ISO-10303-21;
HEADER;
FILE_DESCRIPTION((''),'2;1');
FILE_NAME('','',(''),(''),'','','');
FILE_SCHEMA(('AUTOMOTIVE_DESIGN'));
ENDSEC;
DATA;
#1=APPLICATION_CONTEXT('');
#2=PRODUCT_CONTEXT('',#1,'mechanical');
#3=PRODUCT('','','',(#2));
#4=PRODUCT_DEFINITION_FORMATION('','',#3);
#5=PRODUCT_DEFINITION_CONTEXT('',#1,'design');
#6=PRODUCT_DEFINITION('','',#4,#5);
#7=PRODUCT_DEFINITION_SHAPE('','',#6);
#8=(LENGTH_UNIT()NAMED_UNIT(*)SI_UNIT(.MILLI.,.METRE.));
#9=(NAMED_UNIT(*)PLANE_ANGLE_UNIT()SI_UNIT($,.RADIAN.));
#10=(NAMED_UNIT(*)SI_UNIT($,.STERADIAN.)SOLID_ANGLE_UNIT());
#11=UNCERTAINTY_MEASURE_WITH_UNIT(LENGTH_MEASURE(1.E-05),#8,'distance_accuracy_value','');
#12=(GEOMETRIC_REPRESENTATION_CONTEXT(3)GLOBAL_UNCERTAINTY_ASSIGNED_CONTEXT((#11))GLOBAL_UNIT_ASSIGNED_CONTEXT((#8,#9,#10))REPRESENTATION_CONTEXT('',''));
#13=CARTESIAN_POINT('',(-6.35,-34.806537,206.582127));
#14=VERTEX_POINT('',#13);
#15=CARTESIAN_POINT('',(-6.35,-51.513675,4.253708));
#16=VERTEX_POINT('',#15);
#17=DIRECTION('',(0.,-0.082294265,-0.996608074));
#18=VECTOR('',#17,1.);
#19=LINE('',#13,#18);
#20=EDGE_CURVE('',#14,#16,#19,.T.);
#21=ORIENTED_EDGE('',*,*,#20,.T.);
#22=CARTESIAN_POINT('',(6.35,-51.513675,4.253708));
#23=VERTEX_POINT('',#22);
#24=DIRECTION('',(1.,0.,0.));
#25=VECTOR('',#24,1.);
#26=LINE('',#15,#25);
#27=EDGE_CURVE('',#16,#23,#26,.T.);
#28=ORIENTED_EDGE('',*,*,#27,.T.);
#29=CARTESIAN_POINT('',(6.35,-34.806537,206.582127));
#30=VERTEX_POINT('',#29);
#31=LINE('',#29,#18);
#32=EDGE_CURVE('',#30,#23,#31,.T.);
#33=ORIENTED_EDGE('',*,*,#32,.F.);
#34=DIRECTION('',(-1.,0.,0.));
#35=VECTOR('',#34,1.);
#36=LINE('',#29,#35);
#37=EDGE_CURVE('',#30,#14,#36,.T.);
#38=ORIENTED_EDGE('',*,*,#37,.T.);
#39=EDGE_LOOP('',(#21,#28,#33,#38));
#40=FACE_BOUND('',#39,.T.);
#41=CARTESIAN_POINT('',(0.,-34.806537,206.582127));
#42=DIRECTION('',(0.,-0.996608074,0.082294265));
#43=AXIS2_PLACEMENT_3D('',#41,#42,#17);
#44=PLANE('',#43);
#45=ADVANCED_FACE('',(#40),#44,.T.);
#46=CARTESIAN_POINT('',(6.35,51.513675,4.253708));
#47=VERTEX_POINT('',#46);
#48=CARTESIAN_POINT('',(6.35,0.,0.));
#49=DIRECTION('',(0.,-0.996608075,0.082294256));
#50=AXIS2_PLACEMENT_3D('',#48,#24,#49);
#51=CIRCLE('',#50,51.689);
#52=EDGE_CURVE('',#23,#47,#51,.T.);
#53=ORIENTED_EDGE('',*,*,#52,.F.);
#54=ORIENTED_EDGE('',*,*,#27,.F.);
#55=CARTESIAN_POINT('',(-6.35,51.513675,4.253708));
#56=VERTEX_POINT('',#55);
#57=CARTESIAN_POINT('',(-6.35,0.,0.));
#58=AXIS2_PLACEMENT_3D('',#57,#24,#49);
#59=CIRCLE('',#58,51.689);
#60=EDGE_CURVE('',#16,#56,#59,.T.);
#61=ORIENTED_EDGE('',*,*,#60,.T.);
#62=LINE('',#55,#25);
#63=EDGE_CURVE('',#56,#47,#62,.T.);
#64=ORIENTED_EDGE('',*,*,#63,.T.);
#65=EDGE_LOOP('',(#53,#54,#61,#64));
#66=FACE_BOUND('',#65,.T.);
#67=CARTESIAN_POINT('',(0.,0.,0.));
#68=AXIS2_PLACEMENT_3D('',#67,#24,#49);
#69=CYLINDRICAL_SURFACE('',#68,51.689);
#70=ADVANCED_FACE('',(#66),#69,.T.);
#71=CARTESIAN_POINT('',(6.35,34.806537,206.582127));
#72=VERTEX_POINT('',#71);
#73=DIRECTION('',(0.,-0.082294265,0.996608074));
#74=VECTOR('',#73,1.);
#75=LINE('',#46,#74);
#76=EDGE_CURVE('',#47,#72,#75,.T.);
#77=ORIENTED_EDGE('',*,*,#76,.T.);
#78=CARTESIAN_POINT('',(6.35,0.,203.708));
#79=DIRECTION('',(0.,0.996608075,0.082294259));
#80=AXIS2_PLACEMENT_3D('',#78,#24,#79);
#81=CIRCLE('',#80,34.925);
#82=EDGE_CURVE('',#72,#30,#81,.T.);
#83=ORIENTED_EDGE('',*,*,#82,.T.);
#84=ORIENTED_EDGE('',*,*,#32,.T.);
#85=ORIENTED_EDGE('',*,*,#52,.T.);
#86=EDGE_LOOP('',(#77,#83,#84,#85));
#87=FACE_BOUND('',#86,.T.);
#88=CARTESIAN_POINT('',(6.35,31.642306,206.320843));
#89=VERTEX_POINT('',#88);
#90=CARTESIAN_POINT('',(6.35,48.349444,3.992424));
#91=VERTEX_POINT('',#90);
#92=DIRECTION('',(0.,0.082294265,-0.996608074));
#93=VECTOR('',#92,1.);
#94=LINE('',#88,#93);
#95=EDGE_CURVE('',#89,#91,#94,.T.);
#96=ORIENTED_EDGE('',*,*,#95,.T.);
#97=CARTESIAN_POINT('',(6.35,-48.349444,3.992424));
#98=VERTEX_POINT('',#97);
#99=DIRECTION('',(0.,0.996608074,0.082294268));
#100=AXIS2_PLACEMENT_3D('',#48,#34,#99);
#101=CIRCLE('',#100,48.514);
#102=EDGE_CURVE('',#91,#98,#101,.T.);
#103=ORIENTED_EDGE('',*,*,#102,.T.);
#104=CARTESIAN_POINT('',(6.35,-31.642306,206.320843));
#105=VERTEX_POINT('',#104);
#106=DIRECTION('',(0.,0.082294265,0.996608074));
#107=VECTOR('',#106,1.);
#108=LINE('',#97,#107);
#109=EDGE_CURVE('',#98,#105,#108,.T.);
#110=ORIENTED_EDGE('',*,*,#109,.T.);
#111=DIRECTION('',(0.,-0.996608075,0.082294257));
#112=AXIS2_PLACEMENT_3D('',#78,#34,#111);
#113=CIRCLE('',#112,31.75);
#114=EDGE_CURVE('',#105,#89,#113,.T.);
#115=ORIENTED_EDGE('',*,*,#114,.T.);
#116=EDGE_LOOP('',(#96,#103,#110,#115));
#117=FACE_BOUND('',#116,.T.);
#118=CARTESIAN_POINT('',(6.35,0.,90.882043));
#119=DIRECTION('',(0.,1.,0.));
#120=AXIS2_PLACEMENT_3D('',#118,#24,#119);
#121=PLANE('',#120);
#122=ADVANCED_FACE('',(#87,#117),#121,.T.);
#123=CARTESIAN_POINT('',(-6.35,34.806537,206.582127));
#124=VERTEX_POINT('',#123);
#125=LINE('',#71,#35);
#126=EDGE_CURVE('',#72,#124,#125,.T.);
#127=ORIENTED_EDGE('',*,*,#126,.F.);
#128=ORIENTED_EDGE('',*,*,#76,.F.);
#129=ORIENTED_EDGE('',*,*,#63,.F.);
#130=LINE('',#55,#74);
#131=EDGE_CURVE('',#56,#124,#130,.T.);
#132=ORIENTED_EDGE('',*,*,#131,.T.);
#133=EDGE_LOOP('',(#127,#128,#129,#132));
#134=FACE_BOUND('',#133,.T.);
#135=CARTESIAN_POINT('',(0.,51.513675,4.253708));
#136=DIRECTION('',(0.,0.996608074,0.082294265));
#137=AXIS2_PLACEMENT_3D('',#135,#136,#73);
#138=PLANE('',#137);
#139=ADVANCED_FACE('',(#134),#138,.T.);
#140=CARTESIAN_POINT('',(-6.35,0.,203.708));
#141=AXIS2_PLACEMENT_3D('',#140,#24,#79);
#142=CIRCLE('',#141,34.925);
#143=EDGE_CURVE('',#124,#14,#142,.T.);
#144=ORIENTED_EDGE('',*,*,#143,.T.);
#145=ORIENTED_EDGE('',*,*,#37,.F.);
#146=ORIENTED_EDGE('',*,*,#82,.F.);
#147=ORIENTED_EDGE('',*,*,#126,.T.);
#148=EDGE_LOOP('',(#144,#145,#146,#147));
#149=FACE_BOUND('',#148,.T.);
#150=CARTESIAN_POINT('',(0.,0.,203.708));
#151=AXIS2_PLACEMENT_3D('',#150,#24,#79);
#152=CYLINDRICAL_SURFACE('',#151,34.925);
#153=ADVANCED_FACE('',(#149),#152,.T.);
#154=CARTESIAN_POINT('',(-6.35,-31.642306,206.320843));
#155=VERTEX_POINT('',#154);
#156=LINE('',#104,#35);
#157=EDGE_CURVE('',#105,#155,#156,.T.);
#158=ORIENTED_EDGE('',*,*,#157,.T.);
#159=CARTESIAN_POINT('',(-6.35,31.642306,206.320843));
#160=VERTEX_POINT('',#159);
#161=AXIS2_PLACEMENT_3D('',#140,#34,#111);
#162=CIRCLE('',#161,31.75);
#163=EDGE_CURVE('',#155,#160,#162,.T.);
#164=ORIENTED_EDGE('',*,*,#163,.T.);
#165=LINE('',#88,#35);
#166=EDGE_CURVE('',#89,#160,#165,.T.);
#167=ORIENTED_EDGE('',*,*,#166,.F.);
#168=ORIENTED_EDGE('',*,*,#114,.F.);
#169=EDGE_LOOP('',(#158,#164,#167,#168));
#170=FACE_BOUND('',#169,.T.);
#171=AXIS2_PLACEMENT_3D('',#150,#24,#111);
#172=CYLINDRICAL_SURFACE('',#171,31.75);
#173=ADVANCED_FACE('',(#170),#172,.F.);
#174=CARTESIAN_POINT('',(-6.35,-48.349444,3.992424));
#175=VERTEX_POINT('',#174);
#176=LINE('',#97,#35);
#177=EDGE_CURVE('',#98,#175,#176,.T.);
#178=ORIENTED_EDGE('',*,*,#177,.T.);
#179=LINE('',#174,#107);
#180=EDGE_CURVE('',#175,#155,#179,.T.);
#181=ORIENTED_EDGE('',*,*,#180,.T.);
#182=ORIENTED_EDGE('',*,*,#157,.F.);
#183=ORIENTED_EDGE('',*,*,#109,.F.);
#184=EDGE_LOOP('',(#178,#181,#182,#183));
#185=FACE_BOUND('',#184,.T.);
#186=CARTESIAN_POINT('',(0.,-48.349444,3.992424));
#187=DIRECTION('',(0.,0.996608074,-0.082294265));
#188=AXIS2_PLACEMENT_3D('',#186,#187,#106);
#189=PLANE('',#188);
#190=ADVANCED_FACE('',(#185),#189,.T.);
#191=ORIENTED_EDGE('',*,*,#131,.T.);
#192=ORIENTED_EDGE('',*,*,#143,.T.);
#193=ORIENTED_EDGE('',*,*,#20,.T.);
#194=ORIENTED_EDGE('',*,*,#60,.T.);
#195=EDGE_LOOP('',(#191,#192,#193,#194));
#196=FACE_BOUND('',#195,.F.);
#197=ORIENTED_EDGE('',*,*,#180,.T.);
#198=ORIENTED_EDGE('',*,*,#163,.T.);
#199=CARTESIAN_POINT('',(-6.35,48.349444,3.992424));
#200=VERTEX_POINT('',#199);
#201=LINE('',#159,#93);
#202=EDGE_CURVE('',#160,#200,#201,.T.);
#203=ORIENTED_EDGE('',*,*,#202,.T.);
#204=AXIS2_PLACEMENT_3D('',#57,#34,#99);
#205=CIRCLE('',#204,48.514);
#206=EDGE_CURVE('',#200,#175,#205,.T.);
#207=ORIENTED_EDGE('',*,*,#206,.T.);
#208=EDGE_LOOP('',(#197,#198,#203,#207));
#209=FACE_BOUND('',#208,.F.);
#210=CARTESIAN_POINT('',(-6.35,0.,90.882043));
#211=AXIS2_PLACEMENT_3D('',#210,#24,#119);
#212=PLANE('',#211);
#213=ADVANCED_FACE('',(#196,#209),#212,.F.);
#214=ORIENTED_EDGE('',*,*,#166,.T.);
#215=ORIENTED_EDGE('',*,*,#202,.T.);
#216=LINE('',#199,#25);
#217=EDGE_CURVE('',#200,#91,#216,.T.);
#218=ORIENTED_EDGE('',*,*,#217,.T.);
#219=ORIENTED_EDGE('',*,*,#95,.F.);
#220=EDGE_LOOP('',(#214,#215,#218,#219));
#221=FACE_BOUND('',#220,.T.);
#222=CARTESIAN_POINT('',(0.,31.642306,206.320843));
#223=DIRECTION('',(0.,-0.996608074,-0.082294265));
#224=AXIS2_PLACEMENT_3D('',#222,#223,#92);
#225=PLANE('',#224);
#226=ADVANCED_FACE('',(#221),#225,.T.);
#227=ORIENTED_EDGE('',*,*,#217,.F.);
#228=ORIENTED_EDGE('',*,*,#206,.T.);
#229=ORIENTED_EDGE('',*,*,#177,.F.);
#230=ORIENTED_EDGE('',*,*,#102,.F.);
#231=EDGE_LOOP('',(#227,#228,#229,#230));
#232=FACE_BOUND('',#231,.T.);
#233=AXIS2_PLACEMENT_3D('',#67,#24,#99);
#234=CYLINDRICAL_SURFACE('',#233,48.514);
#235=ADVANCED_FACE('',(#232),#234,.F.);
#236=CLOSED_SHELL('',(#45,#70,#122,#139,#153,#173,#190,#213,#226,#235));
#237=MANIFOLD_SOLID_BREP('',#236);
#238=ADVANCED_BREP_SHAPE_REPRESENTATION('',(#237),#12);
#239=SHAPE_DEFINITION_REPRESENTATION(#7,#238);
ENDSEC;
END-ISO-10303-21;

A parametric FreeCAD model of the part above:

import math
import FreeCAD as App
import Part
import Sketcher
from FreeCAD import Vector
Q = App.Units.Quantity

doc = App.newDocument("Part")
params = doc.addObject("Spreadsheet::Sheet", "Params")
for row, (alias, value) in enumerate([
    ("sketch1_radius", "1.91 in"),
    ("sketch1_radius2", "1.25 in"),
    ("sketch1_radius3", "2.035 in"),
    ("pad1_length", "0.5 in"),
], start=1):
    params.set(f"A{row}", alias)
    params.set(f"B{row}", "=" + value)
    params.setAlias(f"B{row}", alias)

body = doc.addObject("PartDesign::Body", "Body")

# Sketch on YZ plane
sketch1 = body.newObject("Sketcher::SketchObject", "Sketch")
sketch1.AttachmentSupport = (doc.getObject("YZ_Plane"), [""])
sketch1.MapMode = "FlatFace"
sketch1.addGeometry([
    Part.LineSegment(Vector(-34.806537, 206.582127, 0), Vector(-51.513675, 4.253708, 0)),  # 0
    Part.ArcOfCircle(Part.Circle(Vector(0, 0, 0), Vector(0, 0, 1), 51.689), math.radians(175.279548), math.radians(364.720452)),  # 1
    Part.LineSegment(Vector(51.513675, 4.253708, 0), Vector(34.806537, 206.582127, 0)),  # 2
    Part.ArcOfCircle(Part.Circle(Vector(0, 203.708, 0), Vector(0, 0, 1), 34.925), math.radians(4.720452), math.radians(175.279548)),  # 3
    Part.LineSegment(Vector(31.642306, 206.320843, 0), Vector(48.349444, 3.992424, 0)),  # 4
    Part.ArcOfCircle(Part.Circle(Vector(0, 0, 0), Vector(0, 0, 1), 48.514), math.radians(175.279547), math.radians(364.720453)),  # 5
    Part.LineSegment(Vector(-48.349444, 3.992424, 0), Vector(-31.642306, 206.320843, 0)),  # 6
    Part.ArcOfCircle(Part.Circle(Vector(0, 203.708, 0), Vector(0, 0, 1), 31.75), math.radians(4.720452), math.radians(175.279548)),  # 7
], False)
sketch1.addConstraint([
    Sketcher.Constraint("Tangent", 0, 2, 1, 1),
    Sketcher.Constraint("Tangent", 1, 2, 2, 1),
    Sketcher.Constraint("Tangent", 2, 2, 3, 1),
    Sketcher.Constraint("Tangent", 3, 2, 0, 1),
    Sketcher.Constraint("Tangent", 4, 2, 5, 2),
    Sketcher.Constraint("Tangent", 5, 1, 6, 1),
    Sketcher.Constraint("Tangent", 6, 2, 7, 2),
    Sketcher.Constraint("Tangent", 7, 1, 4, 1),
    Sketcher.Constraint("Coincident", 1, 3, -1, 1),
    Sketcher.Constraint("Coincident", 5, 3, -1, 1),
    Sketcher.Constraint("Coincident", 7, 3, 3, 3),
    Sketcher.Constraint("PointOnObject", 3, 3, -2),
    Sketcher.Constraint("Parallel", 2, 4),
    Sketcher.Constraint("Radius", 5, Q("1.91 in")),
    Sketcher.Constraint("Radius", 7, Q("1.25 in")),
    Sketcher.Constraint("Radius", 1, Q("2.035 in")),
    Sketcher.Constraint("DistanceY", -1, 1, 3, 3, Q("8.02 in")),
])
sketch1.setExpression("Constraints[13]", "Params.sketch1_radius")
sketch1.setExpression("Constraints[14]", "Params.sketch1_radius2")
sketch1.setExpression("Constraints[15]", "Params.sketch1_radius3")
pad1 = body.newObject("PartDesign::Pad", "Pad")
pad1.Profile = sketch1
pad1.setExpression("Length", "Params.pad1_length")
pad1.Midplane = True

doc.recompute()
